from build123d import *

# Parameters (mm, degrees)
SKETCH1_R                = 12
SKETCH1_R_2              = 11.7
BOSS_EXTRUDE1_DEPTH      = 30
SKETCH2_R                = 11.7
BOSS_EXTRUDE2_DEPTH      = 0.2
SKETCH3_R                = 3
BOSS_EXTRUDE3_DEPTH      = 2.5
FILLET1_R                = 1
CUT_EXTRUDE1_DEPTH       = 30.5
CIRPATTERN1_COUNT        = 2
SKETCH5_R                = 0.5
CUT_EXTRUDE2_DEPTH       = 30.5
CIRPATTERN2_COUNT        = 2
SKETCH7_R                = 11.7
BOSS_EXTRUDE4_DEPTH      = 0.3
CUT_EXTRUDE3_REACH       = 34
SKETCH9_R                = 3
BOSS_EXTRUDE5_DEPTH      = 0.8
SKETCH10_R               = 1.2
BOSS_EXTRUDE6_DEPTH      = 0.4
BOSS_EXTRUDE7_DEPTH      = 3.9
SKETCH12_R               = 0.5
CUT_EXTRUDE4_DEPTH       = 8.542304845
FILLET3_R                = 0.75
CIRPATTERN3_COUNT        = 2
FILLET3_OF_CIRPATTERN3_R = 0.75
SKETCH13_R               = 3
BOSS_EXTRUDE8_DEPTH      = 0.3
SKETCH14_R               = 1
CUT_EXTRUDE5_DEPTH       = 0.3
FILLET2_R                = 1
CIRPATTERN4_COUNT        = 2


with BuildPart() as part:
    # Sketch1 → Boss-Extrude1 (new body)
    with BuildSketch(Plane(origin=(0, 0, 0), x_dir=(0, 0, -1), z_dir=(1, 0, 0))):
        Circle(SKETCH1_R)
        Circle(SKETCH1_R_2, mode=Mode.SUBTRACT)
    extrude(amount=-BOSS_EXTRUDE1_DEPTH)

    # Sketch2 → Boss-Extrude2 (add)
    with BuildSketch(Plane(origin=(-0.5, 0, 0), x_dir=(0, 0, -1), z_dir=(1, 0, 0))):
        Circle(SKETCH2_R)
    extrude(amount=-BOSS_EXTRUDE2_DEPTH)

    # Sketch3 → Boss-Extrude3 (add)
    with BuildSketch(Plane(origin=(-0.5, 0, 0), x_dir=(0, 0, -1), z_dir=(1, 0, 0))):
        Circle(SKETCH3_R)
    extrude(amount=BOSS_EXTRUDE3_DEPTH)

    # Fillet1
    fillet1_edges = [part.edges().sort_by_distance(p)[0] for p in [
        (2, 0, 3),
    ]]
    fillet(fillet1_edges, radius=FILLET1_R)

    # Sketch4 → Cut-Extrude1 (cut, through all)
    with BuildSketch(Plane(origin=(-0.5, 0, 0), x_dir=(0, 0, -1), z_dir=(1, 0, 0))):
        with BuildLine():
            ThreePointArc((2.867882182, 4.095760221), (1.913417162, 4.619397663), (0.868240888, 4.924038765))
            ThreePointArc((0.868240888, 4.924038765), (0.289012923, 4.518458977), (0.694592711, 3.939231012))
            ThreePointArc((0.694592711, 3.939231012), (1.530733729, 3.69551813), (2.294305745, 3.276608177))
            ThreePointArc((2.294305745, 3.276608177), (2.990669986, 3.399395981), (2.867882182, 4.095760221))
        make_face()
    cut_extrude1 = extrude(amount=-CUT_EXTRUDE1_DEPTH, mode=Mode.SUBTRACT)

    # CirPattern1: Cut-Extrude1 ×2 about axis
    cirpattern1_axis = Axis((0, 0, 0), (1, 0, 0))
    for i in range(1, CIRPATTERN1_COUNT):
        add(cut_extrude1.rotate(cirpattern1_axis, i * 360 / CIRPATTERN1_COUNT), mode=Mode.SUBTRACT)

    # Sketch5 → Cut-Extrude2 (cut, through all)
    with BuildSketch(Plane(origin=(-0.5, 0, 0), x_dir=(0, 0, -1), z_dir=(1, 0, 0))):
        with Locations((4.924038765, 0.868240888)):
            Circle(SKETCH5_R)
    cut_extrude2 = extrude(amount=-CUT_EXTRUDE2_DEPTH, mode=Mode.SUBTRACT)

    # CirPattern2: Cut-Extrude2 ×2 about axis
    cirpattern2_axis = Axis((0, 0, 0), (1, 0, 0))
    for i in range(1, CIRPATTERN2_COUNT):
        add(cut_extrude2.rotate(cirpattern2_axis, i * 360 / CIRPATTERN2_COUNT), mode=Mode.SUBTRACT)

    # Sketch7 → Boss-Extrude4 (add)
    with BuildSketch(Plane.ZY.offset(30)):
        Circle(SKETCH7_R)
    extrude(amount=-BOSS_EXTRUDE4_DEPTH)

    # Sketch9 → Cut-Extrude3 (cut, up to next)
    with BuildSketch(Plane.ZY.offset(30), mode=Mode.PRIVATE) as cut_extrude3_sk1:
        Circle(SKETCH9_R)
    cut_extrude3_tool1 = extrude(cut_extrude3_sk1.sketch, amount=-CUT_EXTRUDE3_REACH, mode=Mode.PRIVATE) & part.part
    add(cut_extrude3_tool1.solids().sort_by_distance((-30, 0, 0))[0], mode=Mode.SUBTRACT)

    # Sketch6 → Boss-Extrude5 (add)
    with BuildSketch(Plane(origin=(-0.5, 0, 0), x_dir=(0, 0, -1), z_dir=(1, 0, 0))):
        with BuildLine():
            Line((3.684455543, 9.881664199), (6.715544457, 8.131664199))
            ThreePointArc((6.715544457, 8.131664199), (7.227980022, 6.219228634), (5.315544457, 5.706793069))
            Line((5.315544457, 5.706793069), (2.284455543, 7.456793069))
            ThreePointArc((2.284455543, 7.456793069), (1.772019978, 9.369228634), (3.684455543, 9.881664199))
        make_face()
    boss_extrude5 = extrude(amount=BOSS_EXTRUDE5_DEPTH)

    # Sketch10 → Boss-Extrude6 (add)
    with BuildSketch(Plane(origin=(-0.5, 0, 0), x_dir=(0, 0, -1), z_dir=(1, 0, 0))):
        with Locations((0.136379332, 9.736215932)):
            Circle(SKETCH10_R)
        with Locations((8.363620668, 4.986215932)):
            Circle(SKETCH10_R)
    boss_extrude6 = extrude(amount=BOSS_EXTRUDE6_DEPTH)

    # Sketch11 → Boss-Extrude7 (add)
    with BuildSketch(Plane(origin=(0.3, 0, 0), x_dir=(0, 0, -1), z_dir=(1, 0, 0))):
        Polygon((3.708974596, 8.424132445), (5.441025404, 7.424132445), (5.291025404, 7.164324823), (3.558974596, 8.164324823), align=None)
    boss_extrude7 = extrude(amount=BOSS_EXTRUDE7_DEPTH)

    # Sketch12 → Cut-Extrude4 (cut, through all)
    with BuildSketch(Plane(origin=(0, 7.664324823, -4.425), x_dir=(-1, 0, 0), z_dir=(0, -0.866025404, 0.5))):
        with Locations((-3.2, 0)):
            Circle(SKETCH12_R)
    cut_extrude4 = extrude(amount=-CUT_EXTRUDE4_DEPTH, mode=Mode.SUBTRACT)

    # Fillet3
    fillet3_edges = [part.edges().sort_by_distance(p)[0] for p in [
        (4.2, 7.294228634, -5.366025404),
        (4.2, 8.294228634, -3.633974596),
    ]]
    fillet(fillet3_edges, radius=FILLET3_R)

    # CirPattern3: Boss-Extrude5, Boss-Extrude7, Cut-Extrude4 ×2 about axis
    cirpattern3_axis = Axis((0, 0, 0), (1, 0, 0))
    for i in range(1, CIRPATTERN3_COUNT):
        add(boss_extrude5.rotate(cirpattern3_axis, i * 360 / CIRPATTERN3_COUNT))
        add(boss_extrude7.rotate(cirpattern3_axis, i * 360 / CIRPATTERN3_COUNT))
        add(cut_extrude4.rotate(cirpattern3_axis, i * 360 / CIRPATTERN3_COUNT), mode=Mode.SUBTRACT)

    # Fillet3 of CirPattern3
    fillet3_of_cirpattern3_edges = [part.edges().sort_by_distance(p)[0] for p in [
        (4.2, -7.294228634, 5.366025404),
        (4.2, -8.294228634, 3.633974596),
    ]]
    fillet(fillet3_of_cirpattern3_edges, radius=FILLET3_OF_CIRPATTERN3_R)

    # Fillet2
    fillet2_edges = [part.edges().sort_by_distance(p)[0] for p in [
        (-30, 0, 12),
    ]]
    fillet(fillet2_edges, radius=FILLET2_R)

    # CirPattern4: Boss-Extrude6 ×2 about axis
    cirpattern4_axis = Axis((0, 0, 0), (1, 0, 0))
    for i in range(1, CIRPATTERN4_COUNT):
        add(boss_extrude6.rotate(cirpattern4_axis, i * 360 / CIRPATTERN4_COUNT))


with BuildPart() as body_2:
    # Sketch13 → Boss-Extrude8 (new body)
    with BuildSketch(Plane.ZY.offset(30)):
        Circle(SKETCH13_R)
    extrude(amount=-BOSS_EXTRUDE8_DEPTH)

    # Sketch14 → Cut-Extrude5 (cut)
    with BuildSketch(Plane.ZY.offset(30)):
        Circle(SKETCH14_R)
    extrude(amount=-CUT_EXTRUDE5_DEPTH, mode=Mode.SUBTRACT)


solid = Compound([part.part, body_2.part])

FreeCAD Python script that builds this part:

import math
import FreeCAD as App
import Part
import Sketcher
Q = App.Units.Quantity


def edges_at(feature, points):
    """Names of the edges that pass closest to the given points."""
    edges = feature.Shape.Edges
    near = lambda p: min(range(len(edges)), key=lambda i: edges[i].distToShape(Part.Vertex(*p))[0])
    return sorted({f"Edge{near(p) + 1}" for p in points})

doc = App.newDocument("Part")
params = doc.addObject("Spreadsheet::Sheet", "Params")
for row, (alias, value) in enumerate([
    ("sketch1_diameter", "24 mm"),
    ("sketch1_diameter2", "23.4 mm"),
    ("pad1_length", "30 mm"),
    ("sketch2_diameter", "23.4 mm"),
    ("pad2_length", "0.2 mm"),
    ("sketch3_diameter", "6 mm"),
    ("pad3_length", "2.5 mm"),
    ("fillet_radius", "1 mm"),
    ("sketch4_radius", "5 mm"),
    ("sketch4_radius2", "4 mm"),
    ("sketch5_diameter", "1 mm"),
    ("sketch6_diameter", "23.4 mm"),
    ("pad4_length", "0.3 mm"),
    ("sketch7_diameter", "6 mm"),
    ("sketch8_radius", "1.4 mm"),
    ("sketch8_length", "3.5 mm"),
    ("pad5_length", "0.8 mm"),
    ("sketch9_diameter", "2.4 mm"),
    ("pad6_length", "0.4 mm"),
    ("sketch10_length", "2 mm"),
    ("sketch10_length2", "0.3 mm"),
    ("pad7_length", "3.9 mm"),
    ("sketch11_diameter", "1 mm"),
    ("fillet2_radius", "0.75 mm"),
    ("fillet3_radius", "0.75 mm"),
    ("fillet4_radius", "1 mm"),
    ("sketch12_diameter", "6 mm"),
    ("pad8_length", "0.3 mm"),
    ("sketch13_diameter", "2 mm"),
    ("pocket5_length", "0.3 mm"),
], start=1):
    params.set(f"A{row}", alias)
    params.set(f"B{row}", "=" + value)
    params.setAlias(f"B{row}", alias)

body = doc.addObject("PartDesign::Body", "Body")

sketch1 = body.newObject("Sketcher::SketchObject", "Sketch")
sketch1.AttachmentSupport = (doc.getObject("YZ_Plane"), [""])
sketch1.MapMode = "FlatFace"
sketch1.addGeometry(Part.Circle(App.Vector(0, 0, 0), App.Vector(0, 0, 1), 12), False)
sketch1.addGeometry(Part.Circle(App.Vector(0, 0, 0), App.Vector(0, 0, 1), 12), False)
sketch1.addConstraint(Sketcher.Constraint("Coincident", 0, 3, -1, 1))
sketch1.addConstraint(Sketcher.Constraint("Coincident", 1, 3, -1, 1))
sketch1.addConstraint(Sketcher.Constraint("Diameter", 0, 24.0))
sketch1.addConstraint(Sketcher.Constraint("Diameter", 1, 23.4))
sketch1.setExpression("Constraints[2]", "Params.sketch1_diameter")
sketch1.setExpression("Constraints[3]", "Params.sketch1_diameter2")
pad1 = body.newObject("PartDesign::Pad", "Pad")
pad1.Profile = sketch1
pad1.setExpression("Length", "Params.pad1_length")
pad1.Reversed = True

sketch2 = body.newObject("Sketcher::SketchObject", "Sketch001")
sketch2.AttachmentSupport = (doc.getObject("YZ_Plane"), [""])
sketch2.MapMode = "FlatFace"
sketch2.AttachmentOffset = App.Placement(App.Vector(0, 0, -0.5), App.Rotation())
sketch2.addGeometry(Part.Circle(App.Vector(0, 0, 0), App.Vector(0, 0, 1), 12), False)
sketch2.addConstraint(Sketcher.Constraint("Coincident", 0, 3, -1, 1))
sketch2.addConstraint(Sketcher.Constraint("Diameter", 0, 23.4))
sketch2.setExpression("Constraints[1]", "Params.sketch2_diameter")
pad2 = body.newObject("PartDesign::Pad", "Pad001")
pad2.Profile = sketch2
pad2.setExpression("Length", "Params.pad2_length")
pad2.Reversed = True

sketch3 = body.newObject("Sketcher::SketchObject", "Sketch002")
sketch3.AttachmentSupport = (doc.getObject("YZ_Plane"), [""])
sketch3.MapMode = "FlatFace"
sketch3.AttachmentOffset = App.Placement(App.Vector(0, 0, -0.5), App.Rotation())
sketch3.addGeometry(Part.Circle(App.Vector(0, 0, 0), App.Vector(0, 0, 1), 3), False)
sketch3.addConstraint(Sketcher.Constraint("Coincident", 0, 3, -1, 1))
sketch3.addConstraint(Sketcher.Constraint("Diameter", 0, 6.0))
sketch3.setExpression("Constraints[1]", "Params.sketch3_diameter")
pad3 = body.newObject("PartDesign::Pad", "Pad002")
pad3.Profile = sketch3
pad3.setExpression("Length", "Params.pad3_length")
doc.recompute()

fillet = body.newObject("PartDesign::Fillet", "Fillet")
fillet.Base = (pad3, edges_at(pad3, [(2, 0, 3)]))
fillet.setExpression("Radius", "Params.fillet_radius")

sketch4 = body.newObject("Sketcher::SketchObject", "Sketch003")
sketch4.AttachmentSupport = (doc.getObject("YZ_Plane"), [""])
sketch4.MapMode = "FlatFace"
sketch4.AttachmentOffset = App.Placement(App.Vector(0, 0, -0.5), App.Rotation())
sketch4.addGeometry(Part.ArcOfCircle(Part.Circle(App.Vector(0, 0, 0), App.Vector(0, 0, 1), 5), math.radians(-35), math.radians(-10)), False)
sketch4.addGeometry(Part.ArcOfCircle(Part.Circle(App.Vector(4.4, -0.8, 0), App.Vector(0, 0, 1), 0.5), math.radians(-10), math.radians(170)), False)
sketch4.addGeometry(Part.ArcOfCircle(Part.Circle(App.Vector(0, 0, 0), App.Vector(0, 0, 1), 4), math.radians(-35), math.radians(-10)), False)
sketch4.addGeometry(Part.ArcOfCircle(Part.Circle(App.Vector(3.7, -2.6, 0), App.Vector(0, 0, 1), 0.5), math.radians(145), math.radians(325)), False)
sketch4.addConstraint(Sketcher.Constraint("Tangent", 0, 2, 1, 1))
sketch4.addConstraint(Sketcher.Constraint("Tangent", 1, 2, 2, 2))
sketch4.addConstraint(Sketcher.Constraint("Tangent", 2, 1, 3, 1))
sketch4.addConstraint(Sketcher.Constraint("Tangent", 3, 2, 0, 1))
sketch4.addConstraint(Sketcher.Constraint("Coincident", 0, 3, -1, 1))
sketch4.addConstraint(Sketcher.Constraint("Coincident", 2, 3, -1, 1))
sketch4.addConstraint(Sketcher.Constraint("Radius", 0, 5.0))
sketch4.addConstraint(Sketcher.Constraint("Radius", 2, 4.0))
sketch4.addConstraint(Sketcher.Constraint("DistanceY", 3, 3, 1, 2, 1.886501))
sketch4.addConstraint(Sketcher.Constraint("DistanceX", -1, 1, 0, 2, 4.924039))
sketch4.setExpression("Constraints[6]", "Params.sketch4_radius")
sketch4.setExpression("Constraints[7]", "Params.sketch4_radius2")
pocket1 = body.newObject("PartDesign::Pocket", "Pocket")
pocket1.Profile = sketch4
pocket1.Type = "ThroughAll"
doc.recompute()

polarpattern = body.newObject("PartDesign::PolarPattern", "PolarPattern")
polarpattern.Originals = [pocket1]
polarpattern.Axis = (doc.getObject("X_Axis"), [""])
polarpattern.Angle = 360
polarpattern.Occurrences = 2
body.Tip = polarpattern

sketch5 = body.newObject("Sketcher::SketchObject", "Sketch004")
sketch5.AttachmentSupport = (doc.getObject("YZ_Plane"), [""])
sketch5.MapMode = "FlatFace"
sketch5.AttachmentOffset = App.Placement(App.Vector(0, 0, -0.5), App.Rotation())
sketch5.addGeometry(Part.Circle(App.Vector(0.9, -4.9, 0), App.Vector(0, 0, 1), 0.5), False)
sketch5.addConstraint(Sketcher.Constraint("Diameter", 0, 1.0))
sketch5.addConstraint(Sketcher.Constraint("DistanceX", -1, 1, 0, 3, 0.868241))
sketch5.addConstraint(Sketcher.Constraint("DistanceY", 0, 3, -1, 1, 4.924039))
sketch5.setExpression("Constraints[0]", "Params.sketch5_diameter")
pocket2 = body.newObject("PartDesign::Pocket", "Pocket001")
pocket2.Profile = sketch5
pocket2.Type = "ThroughAll"
doc.recompute()

polarpattern2 = body.newObject("PartDesign::PolarPattern", "PolarPattern001")
polarpattern2.Originals = [pocket2]
polarpattern2.Axis = (doc.getObject("X_Axis"), [""])
polarpattern2.Angle = 360
polarpattern2.Occurrences = 2
body.Tip = polarpattern2

sketch6 = body.newObject("Sketcher::SketchObject", "Sketch005")
sketch6.AttachmentSupport = (doc.getObject("YZ_Plane"), [""])
sketch6.MapMode = "FlatFace"
sketch6.AttachmentOffset = App.Placement(App.Vector(0, 0, -30), App.Rotation())
sketch6.addGeometry(Part.Circle(App.Vector(0, 0, 0), App.Vector(0, 0, 1), 12), False)
sketch6.addConstraint(Sketcher.Constraint("Coincident", 0, 3, -1, 1))
sketch6.addConstraint(Sketcher.Constraint("Diameter", 0, 23.4))
sketch6.setExpression("Constraints[1]", "Params.sketch6_diameter")
pad4 = body.newObject("PartDesign::Pad", "Pad003")
pad4.Profile = sketch6
pad4.setExpression("Length", "Params.pad4_length")

sketch7 = body.newObject("Sketcher::SketchObject", "Sketch006")
sketch7.AttachmentSupport = (doc.getObject("YZ_Plane"), [""])
sketch7.MapMode = "FlatFace"
sketch7.AttachmentOffset = App.Placement(App.Vector(0, 0, -30), App.Rotation())
sketch7.addGeometry(Part.Circle(App.Vector(0, 0, 0), App.Vector(0, 0, 1), 3), False)
sketch7.addConstraint(Sketcher.Constraint("Coincident", 0, 3, -1, 1))
sketch7.addConstraint(Sketcher.Constraint("Diameter", 0, 6.0))
sketch7.setExpression("Constraints[1]", "Params.sketch7_diameter")
pocket3 = body.newObject("PartDesign::Pocket", "Pocket002")
pocket3.Profile = sketch7
pocket3.Type = "UpToFirst"
pocket3.Reversed = True

sketch8 = body.newObject("Sketcher::SketchObject", "Sketch007")
sketch8.AttachmentSupport = (doc.getObject("YZ_Plane"), [""])
sketch8.MapMode = "FlatFace"
sketch8.AttachmentOffset = App.Placement(App.Vector(0, 0, -0.5), App.Rotation())
sketch8.addGeometry(Part.LineSegment(App.Vector(8.1, -6.7, 0), App.Vector(9.9, -3.7, 0)), False)
sketch8.addGeometry(Part.ArcOfCircle(Part.Circle(App.Vector(8.7, -3, 0), App.Vector(0, 0, 1), 1.4), math.radians(-30), math.radians(150)), False)
sketch8.addGeometry(Part.LineSegment(App.Vector(7.5, -2.3, 0), App.Vector(5.7, -5.3, 0)), False)
sketch8.addGeometry(Part.ArcOfCircle(Part.Circle(App.Vector(6.9, -6, 0), App.Vector(0, 0, 1), 1.4), math.radians(150), math.radians(330)), False)
sketch8.addConstraint(Sketcher.Constraint("Tangent", 0, 2, 1, 1))
sketch8.addConstraint(Sketcher.Constraint("Tangent", 1, 2, 2, 1))
sketch8.addConstraint(Sketcher.Constraint("Tangent", 2, 2, 3, 1))
sketch8.addConstraint(Sketcher.Constraint("Tangent", 3, 2, 0, 1))
sketch8.addConstraint(Sketcher.Constraint("Equal", 1, 3))
sketch8.addConstraint(Sketcher.Constraint("Radius", 1, 1.4))
sketch8.addConstraint(Sketcher.Constraint("Angle", 0, Q("60 deg")))
sketch8.addConstraint(Sketcher.Constraint("Distance", 0, 3.5))
sketch8.addConstraint(Sketcher.Constraint("DistanceX", -1, 1, 1, 3, 8.669229))
sketch8.addConstraint(Sketcher.Constraint("DistanceY", 1, 3, -1, 1, 2.984456))
sketch8.setExpression("Constraints[5]", "Params.sketch8_radius")
sketch8.setExpression("Constraints[7]", "Params.sketch8_length")
pad5 = body.newObject("PartDesign::Pad", "Pad004")
pad5.Profile = sketch8
pad5.setExpression("Length", "Params.pad5_length")

sketch9 = body.newObject("Sketcher::SketchObject", "Sketch008")
sketch9.AttachmentSupport = (doc.getObject("YZ_Plane"), [""])
sketch9.MapMode = "FlatFace"
sketch9.AttachmentOffset = App.Placement(App.Vector(0, 0, -0.5), App.Rotation())
sketch9.addGeometry(Part.Circle(App.Vector(9.7, -0.1, 0), App.Vector(0, 0, 1), 1.2), False)
sketch9.addGeometry(Part.Circle(App.Vector(5, -8.4, 0), App.Vector(0, 0, 1), 1.2), False)
sketch9.addConstraint(Sketcher.Constraint("Equal", 0, 1))
sketch9.addConstraint(Sketcher.Constraint("Diameter", 0, 2.4))
sketch9.addConstraint(Sketcher.Constraint("DistanceX", 1, 3, 0, 3, 4.75))
sketch9.addConstraint(Sketcher.Constraint("DistanceY", 0, 3, -1, 1, 0.136379))
sketch9.addConstraint(Sketcher.Constraint("DistanceY", 1, 3, -1, 1, 8.363621))
sketch9.addConstraint(Sketcher.Constraint("DistanceX", -1, 1, 0, 3, 9.736216))
sketch9.setExpression("Constraints[1]", "Params.sketch9_diameter")
pad6 = body.newObject("PartDesign::Pad", "Pad005")
pad6.Profile = sketch9
pad6.setExpression("Length", "Params.pad6_length")

sketch10 = body.newObject("Sketcher::SketchObject", "Sketch009")
sketch10.AttachmentSupport = (doc.getObject("YZ_Plane"), [""])
sketch10.MapMode = "FlatFace"
sketch10.AttachmentOffset = App.Placement(App.Vector(0, 0, 0.3), App.Rotation())
sketch10.addGeometry(Part.LineSegment(App.Vector(7.42, -5.44, 0), App.Vector(8.42, -3.71, 0)), False)
sketch10.addGeometry(Part.LineSegment(App.Vector(8.42, -3.71, 0), App.Vector(8.16, -3.56, 0)), False)
sketch10.addGeometry(Part.LineSegment(App.Vector(8.16, -3.56, 0), App.Vector(7.16, -5.29, 0)), False)
sketch10.addGeometry(Part.LineSegment(App.Vector(7.16, -5.29, 0), App.Vector(7.42, -5.44, 0)), False)
sketch10.addConstraint(Sketcher.Constraint("Coincident", 0, 2, 1, 1))
sketch10.addConstraint(Sketcher.Constraint("Coincident", 1, 2, 2, 1))
sketch10.addConstraint(Sketcher.Constraint("Coincident", 2, 2, 3, 1))
sketch10.addConstraint(Sketcher.Constraint("Coincident", 3, 2, 0, 1))
sketch10.addConstraint(Sketcher.Constraint("Perpendicular", 0, 1))
sketch10.addConstraint(Sketcher.Constraint("Perpendicular", 1, 2))
sketch10.addConstraint(Sketcher.Constraint("Perpendicular", 2, 3))
sketch10.addConstraint(Sketcher.Constraint("Angle", 0, Q("60 deg")))
sketch10.addConstraint(Sketcher.Constraint("Distance", 0, 2.0))
sketch10.addConstraint(Sketcher.Constraint("Distance", 1, 0.3))
sketch10.addConstraint(Sketcher.Constraint("DistanceX", -1, 1, 0, 2, 8.424132))
sketch10.addConstraint(Sketcher.Constraint("DistanceY", 0, 2, -1, 1, 3.708975))
sketch10.setExpression("Constraints[8]", "Params.sketch10_length")
sketch10.setExpression("Constraints[9]", "Params.sketch10_length2")
pad7 = body.newObject("PartDesign::Pad", "Pad006")
pad7.Profile = sketch10
pad7.setExpression("Length", "Params.pad7_length")

sketch11 = body.newObject("Sketcher::SketchObject", "Sketch010")
sketch11.Placement = App.Placement(App.Vector(0, 7.664325, -4.425), App.Rotation(App.Vector(-1, 0, 0), App.Vector(0, -0.5, -0.866025404), App.Vector(0, -0.866025404, 0.5), "ZXY"))
sketch11.addGeometry(Part.Circle(App.Vector(-3.2, 0, 0), App.Vector(0, 0, 1), 0.5), False)
sketch11.addConstraint(Sketcher.Constraint("PointOnObject", 0, 3, -1))
sketch11.addConstraint(Sketcher.Constraint("Diameter", 0, 1.0))
sketch11.addConstraint(Sketcher.Constraint("DistanceX", 0, 3, -1, 1, 3.2))
sketch11.setExpression("Constraints[1]", "Params.sketch11_diameter")
pocket4 = body.newObject("PartDesign::Pocket", "Pocket003")
pocket4.Profile = sketch11
pocket4.Type = "ThroughAll"
doc.recompute()

fillet2 = body.newObject("PartDesign::Fillet", "Fillet001")
fillet2.Base = (pocket4, edges_at(pocket4, [(4.2, 7.294, -5.366), (4.2, 8.294, -3.634)]))
fillet2.setExpression("Radius", "Params.fillet2_radius")
doc.recompute()

polarpattern3 = body.newObject("PartDesign::PolarPattern", "PolarPattern002")
polarpattern3.Originals = [pad5, pad7, pocket4]
polarpattern3.Axis = (doc.getObject("X_Axis"), [""])
polarpattern3.Angle = 360
polarpattern3.Occurrences = 2
body.Tip = polarpattern3
doc.recompute()

fillet3 = body.newObject("PartDesign::Fillet", "Fillet002")
fillet3.Base = (polarpattern3, edges_at(polarpattern3, [(4.2, -7.294, 5.366), (4.2, -8.294, 3.634)]))
fillet3.setExpression("Radius", "Params.fillet3_radius")
doc.recompute()

fillet4 = body.newObject("PartDesign::Fillet", "Fillet003")
fillet4.Base = (fillet3, edges_at(fillet3, [(-30, 0, 12)]))
fillet4.setExpression("Radius", "Params.fillet4_radius")
doc.recompute()

polarpattern4 = body.newObject("PartDesign::PolarPattern", "PolarPattern003")
polarpattern4.Originals = [pad6]
polarpattern4.Axis = (doc.getObject("X_Axis"), [""])
polarpattern4.Angle = 360
polarpattern4.Occurrences = 2
body.Tip = polarpattern4
body2 = doc.addObject("PartDesign::Body", "Body001")

sketch12 = body2.newObject("Sketcher::SketchObject", "Sketch011")
sketch12.AttachmentSupport = (doc.getObject("YZ_Plane001"), [""])
sketch12.MapMode = "FlatFace"
sketch12.AttachmentOffset = App.Placement(App.Vector(0, 0, -30), App.Rotation())
sketch12.addGeometry(Part.Circle(App.Vector(0, 0, 0), App.Vector(0, 0, 1), 3), False)
sketch12.addConstraint(Sketcher.Constraint("Coincident", 0, 3, -1, 1))
sketch12.addConstraint(Sketcher.Constraint("Diameter", 0, 6.0))
sketch12.setExpression("Constraints[1]", "Params.sketch12_diameter")
pad8 = body2.newObject("PartDesign::Pad", "Pad007")
pad8.Profile = sketch12
pad8.setExpression("Length", "Params.pad8_length")

sketch13 = body2.newObject("Sketcher::SketchObject", "Sketch012")
sketch13.AttachmentSupport = (doc.getObject("YZ_Plane001"), [""])
sketch13.MapMode = "FlatFace"
sketch13.AttachmentOffset = App.Placement(App.Vector(0, 0, -30), App.Rotation())
sketch13.addGeometry(Part.Circle(App.Vector(0, 0, 0), App.Vector(0, 0, 1), 1), False)
sketch13.addConstraint(Sketcher.Constraint("Coincident", 0, 3, -1, 1))
sketch13.addConstraint(Sketcher.Constraint("Diameter", 0, 2.0))
sketch13.setExpression("Constraints[1]", "Params.sketch13_diameter")
pocket5 = body2.newObject("PartDesign::Pocket", "Pocket004")
pocket5.Profile = sketch13
pocket5.setExpression("Length", "Params.pocket5_length")
pocket5.Reversed = True

doc.recompute()
